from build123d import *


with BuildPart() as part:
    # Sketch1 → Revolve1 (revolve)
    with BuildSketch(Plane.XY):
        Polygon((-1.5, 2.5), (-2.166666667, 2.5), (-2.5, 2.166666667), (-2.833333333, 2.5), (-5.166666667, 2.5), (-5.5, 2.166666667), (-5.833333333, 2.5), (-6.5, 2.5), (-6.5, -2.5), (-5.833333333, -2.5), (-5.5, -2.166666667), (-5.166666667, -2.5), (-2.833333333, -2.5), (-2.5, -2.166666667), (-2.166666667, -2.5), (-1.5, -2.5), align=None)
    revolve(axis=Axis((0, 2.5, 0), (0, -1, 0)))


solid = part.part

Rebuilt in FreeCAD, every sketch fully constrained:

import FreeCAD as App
import Part
import Sketcher


def add_polygon(sketch, points):
    """Adds a closed chain of lines whose ends are joined by coincident constraints."""
    first, n = sketch.GeometryCount, len(points)
    for a, b in zip(points, points[1:] + points[:1]):
        sketch.addGeometry(Part.LineSegment(App.Vector(*a, 0), App.Vector(*b, 0)), False)
    for i in range(n):
        sketch.addConstraint(Sketcher.Constraint("Coincident", first + i, 2, first + (i + 1) % n, 1))

doc = App.newDocument("Part")
params = doc.addObject("Spreadsheet::Sheet", "Params")
for row, (alias, value) in enumerate([
    ("sketch1_height", "5 mm"),
    ("revolution_angle", "360 deg"),
], start=1):
    params.set(f"A{row}", alias)
    params.set(f"B{row}", "=" + value)
    params.setAlias(f"B{row}", alias)

body = doc.addObject("PartDesign::Body", "Body")

sketch1 = body.newObject("Sketcher::SketchObject", "Sketch")
sketch1.AttachmentSupport = (doc.getObject("XY_Plane"), [""])
sketch1.MapMode = "FlatFace"
add_polygon(sketch1, [(-1.5, 2.5), (-2.166667, 2.5), (-2.5, 2.166667), (-2.833333, 2.5), (-5.166667, 2.5), (-5.5, 2.166667), (-5.833333, 2.5), (-6.5, 2.5), (-6.5, -2.5), (-5.833333, -2.5), (-5.5, -2.166667), (-5.166667, -2.5), (-2.833333, -2.5), (-2.5, -2.166667), (-2.166667, -2.5), (-1.5, -2.5)])
sketch1.addConstraint(Sketcher.Constraint("Horizontal", 0))
sketch1.addConstraint(Sketcher.Constraint("Horizontal", 3))
sketch1.addConstraint(Sketcher.Constraint("Horizontal", 6))
sketch1.addConstraint(Sketcher.Constraint("Vertical", 7))
sketch1.addConstraint(Sketcher.Constraint("Horizontal", 8))
sketch1.addConstraint(Sketcher.Constraint("Horizontal", 11))
sketch1.addConstraint(Sketcher.Constraint("Horizontal", 14))
sketch1.addConstraint(Sketcher.Constraint("Vertical", 15))
sketch1.addConstraint(Sketcher.Constraint("Symmetric", 5, 2, 8, 2, -1))
sketch1.addConstraint(Sketcher.Constraint("Symmetric", 4, 2, 9, 2, -1))
sketch1.addConstraint(Sketcher.Constraint("Symmetric", 3, 2, 10, 2, -1))
sketch1.addConstraint(Sketcher.Constraint("Symmetric", 1, 2, 12, 2, -1))
sketch1.addConstraint(Sketcher.Constraint("Symmetric", 0, 2, 13, 2, -1))
sketch1.addConstraint(Sketcher.Constraint("Perpendicular", 1, 2))
sketch1.addConstraint(Sketcher.Constraint("Perpendicular", 2, 4))
sketch1.addConstraint(Sketcher.Constraint("Perpendicular", 4, 5))
sketch1.addConstraint(Sketcher.Constraint("Perpendicular", 5, 9))
sketch1.addConstraint(Sketcher.Constraint("Perpendicular", 10, 12))
sketch1.addConstraint(Sketcher.Constraint("Horizontal", 0, 2, 2, 2))
sketch1.addConstraint(Sketcher.Constraint("Horizontal", 1, 2, 4, 2))
sketch1.addConstraint(Sketcher.Constraint("Horizontal", 3, 2, 5, 2))
sketch1.addConstraint(Sketcher.Constraint("Equal", 0, 6))
sketch1.addConstraint(Sketcher.Constraint("DistanceY", 7, 2, 7, 1, 5.0))
sketch1.addConstraint(Sketcher.Constraint("DistanceX", 3, 2, 0, 2, 3.0))
sketch1.addConstraint(Sketcher.Constraint("DistanceX", 6, 2, 4, 2, 1.0))
sketch1.addConstraint(Sketcher.Constraint("DistanceX", 1, 2, -1, 1, 2.5))
sketch1.addConstraint(Sketcher.Constraint("DistanceX", 0, 2, 0, 1, 0.666667))
sketch1.setExpression("Constraints[38]", "Params.sketch1_height")
revolution = body.newObject("PartDesign::Revolution", "Revolution")
revolution.Profile = sketch1
revolution.ReferenceAxis = (sketch1, ["V_Axis"])
revolution.setExpression("Angle", "Params.revolution_angle")

doc.recompute()
